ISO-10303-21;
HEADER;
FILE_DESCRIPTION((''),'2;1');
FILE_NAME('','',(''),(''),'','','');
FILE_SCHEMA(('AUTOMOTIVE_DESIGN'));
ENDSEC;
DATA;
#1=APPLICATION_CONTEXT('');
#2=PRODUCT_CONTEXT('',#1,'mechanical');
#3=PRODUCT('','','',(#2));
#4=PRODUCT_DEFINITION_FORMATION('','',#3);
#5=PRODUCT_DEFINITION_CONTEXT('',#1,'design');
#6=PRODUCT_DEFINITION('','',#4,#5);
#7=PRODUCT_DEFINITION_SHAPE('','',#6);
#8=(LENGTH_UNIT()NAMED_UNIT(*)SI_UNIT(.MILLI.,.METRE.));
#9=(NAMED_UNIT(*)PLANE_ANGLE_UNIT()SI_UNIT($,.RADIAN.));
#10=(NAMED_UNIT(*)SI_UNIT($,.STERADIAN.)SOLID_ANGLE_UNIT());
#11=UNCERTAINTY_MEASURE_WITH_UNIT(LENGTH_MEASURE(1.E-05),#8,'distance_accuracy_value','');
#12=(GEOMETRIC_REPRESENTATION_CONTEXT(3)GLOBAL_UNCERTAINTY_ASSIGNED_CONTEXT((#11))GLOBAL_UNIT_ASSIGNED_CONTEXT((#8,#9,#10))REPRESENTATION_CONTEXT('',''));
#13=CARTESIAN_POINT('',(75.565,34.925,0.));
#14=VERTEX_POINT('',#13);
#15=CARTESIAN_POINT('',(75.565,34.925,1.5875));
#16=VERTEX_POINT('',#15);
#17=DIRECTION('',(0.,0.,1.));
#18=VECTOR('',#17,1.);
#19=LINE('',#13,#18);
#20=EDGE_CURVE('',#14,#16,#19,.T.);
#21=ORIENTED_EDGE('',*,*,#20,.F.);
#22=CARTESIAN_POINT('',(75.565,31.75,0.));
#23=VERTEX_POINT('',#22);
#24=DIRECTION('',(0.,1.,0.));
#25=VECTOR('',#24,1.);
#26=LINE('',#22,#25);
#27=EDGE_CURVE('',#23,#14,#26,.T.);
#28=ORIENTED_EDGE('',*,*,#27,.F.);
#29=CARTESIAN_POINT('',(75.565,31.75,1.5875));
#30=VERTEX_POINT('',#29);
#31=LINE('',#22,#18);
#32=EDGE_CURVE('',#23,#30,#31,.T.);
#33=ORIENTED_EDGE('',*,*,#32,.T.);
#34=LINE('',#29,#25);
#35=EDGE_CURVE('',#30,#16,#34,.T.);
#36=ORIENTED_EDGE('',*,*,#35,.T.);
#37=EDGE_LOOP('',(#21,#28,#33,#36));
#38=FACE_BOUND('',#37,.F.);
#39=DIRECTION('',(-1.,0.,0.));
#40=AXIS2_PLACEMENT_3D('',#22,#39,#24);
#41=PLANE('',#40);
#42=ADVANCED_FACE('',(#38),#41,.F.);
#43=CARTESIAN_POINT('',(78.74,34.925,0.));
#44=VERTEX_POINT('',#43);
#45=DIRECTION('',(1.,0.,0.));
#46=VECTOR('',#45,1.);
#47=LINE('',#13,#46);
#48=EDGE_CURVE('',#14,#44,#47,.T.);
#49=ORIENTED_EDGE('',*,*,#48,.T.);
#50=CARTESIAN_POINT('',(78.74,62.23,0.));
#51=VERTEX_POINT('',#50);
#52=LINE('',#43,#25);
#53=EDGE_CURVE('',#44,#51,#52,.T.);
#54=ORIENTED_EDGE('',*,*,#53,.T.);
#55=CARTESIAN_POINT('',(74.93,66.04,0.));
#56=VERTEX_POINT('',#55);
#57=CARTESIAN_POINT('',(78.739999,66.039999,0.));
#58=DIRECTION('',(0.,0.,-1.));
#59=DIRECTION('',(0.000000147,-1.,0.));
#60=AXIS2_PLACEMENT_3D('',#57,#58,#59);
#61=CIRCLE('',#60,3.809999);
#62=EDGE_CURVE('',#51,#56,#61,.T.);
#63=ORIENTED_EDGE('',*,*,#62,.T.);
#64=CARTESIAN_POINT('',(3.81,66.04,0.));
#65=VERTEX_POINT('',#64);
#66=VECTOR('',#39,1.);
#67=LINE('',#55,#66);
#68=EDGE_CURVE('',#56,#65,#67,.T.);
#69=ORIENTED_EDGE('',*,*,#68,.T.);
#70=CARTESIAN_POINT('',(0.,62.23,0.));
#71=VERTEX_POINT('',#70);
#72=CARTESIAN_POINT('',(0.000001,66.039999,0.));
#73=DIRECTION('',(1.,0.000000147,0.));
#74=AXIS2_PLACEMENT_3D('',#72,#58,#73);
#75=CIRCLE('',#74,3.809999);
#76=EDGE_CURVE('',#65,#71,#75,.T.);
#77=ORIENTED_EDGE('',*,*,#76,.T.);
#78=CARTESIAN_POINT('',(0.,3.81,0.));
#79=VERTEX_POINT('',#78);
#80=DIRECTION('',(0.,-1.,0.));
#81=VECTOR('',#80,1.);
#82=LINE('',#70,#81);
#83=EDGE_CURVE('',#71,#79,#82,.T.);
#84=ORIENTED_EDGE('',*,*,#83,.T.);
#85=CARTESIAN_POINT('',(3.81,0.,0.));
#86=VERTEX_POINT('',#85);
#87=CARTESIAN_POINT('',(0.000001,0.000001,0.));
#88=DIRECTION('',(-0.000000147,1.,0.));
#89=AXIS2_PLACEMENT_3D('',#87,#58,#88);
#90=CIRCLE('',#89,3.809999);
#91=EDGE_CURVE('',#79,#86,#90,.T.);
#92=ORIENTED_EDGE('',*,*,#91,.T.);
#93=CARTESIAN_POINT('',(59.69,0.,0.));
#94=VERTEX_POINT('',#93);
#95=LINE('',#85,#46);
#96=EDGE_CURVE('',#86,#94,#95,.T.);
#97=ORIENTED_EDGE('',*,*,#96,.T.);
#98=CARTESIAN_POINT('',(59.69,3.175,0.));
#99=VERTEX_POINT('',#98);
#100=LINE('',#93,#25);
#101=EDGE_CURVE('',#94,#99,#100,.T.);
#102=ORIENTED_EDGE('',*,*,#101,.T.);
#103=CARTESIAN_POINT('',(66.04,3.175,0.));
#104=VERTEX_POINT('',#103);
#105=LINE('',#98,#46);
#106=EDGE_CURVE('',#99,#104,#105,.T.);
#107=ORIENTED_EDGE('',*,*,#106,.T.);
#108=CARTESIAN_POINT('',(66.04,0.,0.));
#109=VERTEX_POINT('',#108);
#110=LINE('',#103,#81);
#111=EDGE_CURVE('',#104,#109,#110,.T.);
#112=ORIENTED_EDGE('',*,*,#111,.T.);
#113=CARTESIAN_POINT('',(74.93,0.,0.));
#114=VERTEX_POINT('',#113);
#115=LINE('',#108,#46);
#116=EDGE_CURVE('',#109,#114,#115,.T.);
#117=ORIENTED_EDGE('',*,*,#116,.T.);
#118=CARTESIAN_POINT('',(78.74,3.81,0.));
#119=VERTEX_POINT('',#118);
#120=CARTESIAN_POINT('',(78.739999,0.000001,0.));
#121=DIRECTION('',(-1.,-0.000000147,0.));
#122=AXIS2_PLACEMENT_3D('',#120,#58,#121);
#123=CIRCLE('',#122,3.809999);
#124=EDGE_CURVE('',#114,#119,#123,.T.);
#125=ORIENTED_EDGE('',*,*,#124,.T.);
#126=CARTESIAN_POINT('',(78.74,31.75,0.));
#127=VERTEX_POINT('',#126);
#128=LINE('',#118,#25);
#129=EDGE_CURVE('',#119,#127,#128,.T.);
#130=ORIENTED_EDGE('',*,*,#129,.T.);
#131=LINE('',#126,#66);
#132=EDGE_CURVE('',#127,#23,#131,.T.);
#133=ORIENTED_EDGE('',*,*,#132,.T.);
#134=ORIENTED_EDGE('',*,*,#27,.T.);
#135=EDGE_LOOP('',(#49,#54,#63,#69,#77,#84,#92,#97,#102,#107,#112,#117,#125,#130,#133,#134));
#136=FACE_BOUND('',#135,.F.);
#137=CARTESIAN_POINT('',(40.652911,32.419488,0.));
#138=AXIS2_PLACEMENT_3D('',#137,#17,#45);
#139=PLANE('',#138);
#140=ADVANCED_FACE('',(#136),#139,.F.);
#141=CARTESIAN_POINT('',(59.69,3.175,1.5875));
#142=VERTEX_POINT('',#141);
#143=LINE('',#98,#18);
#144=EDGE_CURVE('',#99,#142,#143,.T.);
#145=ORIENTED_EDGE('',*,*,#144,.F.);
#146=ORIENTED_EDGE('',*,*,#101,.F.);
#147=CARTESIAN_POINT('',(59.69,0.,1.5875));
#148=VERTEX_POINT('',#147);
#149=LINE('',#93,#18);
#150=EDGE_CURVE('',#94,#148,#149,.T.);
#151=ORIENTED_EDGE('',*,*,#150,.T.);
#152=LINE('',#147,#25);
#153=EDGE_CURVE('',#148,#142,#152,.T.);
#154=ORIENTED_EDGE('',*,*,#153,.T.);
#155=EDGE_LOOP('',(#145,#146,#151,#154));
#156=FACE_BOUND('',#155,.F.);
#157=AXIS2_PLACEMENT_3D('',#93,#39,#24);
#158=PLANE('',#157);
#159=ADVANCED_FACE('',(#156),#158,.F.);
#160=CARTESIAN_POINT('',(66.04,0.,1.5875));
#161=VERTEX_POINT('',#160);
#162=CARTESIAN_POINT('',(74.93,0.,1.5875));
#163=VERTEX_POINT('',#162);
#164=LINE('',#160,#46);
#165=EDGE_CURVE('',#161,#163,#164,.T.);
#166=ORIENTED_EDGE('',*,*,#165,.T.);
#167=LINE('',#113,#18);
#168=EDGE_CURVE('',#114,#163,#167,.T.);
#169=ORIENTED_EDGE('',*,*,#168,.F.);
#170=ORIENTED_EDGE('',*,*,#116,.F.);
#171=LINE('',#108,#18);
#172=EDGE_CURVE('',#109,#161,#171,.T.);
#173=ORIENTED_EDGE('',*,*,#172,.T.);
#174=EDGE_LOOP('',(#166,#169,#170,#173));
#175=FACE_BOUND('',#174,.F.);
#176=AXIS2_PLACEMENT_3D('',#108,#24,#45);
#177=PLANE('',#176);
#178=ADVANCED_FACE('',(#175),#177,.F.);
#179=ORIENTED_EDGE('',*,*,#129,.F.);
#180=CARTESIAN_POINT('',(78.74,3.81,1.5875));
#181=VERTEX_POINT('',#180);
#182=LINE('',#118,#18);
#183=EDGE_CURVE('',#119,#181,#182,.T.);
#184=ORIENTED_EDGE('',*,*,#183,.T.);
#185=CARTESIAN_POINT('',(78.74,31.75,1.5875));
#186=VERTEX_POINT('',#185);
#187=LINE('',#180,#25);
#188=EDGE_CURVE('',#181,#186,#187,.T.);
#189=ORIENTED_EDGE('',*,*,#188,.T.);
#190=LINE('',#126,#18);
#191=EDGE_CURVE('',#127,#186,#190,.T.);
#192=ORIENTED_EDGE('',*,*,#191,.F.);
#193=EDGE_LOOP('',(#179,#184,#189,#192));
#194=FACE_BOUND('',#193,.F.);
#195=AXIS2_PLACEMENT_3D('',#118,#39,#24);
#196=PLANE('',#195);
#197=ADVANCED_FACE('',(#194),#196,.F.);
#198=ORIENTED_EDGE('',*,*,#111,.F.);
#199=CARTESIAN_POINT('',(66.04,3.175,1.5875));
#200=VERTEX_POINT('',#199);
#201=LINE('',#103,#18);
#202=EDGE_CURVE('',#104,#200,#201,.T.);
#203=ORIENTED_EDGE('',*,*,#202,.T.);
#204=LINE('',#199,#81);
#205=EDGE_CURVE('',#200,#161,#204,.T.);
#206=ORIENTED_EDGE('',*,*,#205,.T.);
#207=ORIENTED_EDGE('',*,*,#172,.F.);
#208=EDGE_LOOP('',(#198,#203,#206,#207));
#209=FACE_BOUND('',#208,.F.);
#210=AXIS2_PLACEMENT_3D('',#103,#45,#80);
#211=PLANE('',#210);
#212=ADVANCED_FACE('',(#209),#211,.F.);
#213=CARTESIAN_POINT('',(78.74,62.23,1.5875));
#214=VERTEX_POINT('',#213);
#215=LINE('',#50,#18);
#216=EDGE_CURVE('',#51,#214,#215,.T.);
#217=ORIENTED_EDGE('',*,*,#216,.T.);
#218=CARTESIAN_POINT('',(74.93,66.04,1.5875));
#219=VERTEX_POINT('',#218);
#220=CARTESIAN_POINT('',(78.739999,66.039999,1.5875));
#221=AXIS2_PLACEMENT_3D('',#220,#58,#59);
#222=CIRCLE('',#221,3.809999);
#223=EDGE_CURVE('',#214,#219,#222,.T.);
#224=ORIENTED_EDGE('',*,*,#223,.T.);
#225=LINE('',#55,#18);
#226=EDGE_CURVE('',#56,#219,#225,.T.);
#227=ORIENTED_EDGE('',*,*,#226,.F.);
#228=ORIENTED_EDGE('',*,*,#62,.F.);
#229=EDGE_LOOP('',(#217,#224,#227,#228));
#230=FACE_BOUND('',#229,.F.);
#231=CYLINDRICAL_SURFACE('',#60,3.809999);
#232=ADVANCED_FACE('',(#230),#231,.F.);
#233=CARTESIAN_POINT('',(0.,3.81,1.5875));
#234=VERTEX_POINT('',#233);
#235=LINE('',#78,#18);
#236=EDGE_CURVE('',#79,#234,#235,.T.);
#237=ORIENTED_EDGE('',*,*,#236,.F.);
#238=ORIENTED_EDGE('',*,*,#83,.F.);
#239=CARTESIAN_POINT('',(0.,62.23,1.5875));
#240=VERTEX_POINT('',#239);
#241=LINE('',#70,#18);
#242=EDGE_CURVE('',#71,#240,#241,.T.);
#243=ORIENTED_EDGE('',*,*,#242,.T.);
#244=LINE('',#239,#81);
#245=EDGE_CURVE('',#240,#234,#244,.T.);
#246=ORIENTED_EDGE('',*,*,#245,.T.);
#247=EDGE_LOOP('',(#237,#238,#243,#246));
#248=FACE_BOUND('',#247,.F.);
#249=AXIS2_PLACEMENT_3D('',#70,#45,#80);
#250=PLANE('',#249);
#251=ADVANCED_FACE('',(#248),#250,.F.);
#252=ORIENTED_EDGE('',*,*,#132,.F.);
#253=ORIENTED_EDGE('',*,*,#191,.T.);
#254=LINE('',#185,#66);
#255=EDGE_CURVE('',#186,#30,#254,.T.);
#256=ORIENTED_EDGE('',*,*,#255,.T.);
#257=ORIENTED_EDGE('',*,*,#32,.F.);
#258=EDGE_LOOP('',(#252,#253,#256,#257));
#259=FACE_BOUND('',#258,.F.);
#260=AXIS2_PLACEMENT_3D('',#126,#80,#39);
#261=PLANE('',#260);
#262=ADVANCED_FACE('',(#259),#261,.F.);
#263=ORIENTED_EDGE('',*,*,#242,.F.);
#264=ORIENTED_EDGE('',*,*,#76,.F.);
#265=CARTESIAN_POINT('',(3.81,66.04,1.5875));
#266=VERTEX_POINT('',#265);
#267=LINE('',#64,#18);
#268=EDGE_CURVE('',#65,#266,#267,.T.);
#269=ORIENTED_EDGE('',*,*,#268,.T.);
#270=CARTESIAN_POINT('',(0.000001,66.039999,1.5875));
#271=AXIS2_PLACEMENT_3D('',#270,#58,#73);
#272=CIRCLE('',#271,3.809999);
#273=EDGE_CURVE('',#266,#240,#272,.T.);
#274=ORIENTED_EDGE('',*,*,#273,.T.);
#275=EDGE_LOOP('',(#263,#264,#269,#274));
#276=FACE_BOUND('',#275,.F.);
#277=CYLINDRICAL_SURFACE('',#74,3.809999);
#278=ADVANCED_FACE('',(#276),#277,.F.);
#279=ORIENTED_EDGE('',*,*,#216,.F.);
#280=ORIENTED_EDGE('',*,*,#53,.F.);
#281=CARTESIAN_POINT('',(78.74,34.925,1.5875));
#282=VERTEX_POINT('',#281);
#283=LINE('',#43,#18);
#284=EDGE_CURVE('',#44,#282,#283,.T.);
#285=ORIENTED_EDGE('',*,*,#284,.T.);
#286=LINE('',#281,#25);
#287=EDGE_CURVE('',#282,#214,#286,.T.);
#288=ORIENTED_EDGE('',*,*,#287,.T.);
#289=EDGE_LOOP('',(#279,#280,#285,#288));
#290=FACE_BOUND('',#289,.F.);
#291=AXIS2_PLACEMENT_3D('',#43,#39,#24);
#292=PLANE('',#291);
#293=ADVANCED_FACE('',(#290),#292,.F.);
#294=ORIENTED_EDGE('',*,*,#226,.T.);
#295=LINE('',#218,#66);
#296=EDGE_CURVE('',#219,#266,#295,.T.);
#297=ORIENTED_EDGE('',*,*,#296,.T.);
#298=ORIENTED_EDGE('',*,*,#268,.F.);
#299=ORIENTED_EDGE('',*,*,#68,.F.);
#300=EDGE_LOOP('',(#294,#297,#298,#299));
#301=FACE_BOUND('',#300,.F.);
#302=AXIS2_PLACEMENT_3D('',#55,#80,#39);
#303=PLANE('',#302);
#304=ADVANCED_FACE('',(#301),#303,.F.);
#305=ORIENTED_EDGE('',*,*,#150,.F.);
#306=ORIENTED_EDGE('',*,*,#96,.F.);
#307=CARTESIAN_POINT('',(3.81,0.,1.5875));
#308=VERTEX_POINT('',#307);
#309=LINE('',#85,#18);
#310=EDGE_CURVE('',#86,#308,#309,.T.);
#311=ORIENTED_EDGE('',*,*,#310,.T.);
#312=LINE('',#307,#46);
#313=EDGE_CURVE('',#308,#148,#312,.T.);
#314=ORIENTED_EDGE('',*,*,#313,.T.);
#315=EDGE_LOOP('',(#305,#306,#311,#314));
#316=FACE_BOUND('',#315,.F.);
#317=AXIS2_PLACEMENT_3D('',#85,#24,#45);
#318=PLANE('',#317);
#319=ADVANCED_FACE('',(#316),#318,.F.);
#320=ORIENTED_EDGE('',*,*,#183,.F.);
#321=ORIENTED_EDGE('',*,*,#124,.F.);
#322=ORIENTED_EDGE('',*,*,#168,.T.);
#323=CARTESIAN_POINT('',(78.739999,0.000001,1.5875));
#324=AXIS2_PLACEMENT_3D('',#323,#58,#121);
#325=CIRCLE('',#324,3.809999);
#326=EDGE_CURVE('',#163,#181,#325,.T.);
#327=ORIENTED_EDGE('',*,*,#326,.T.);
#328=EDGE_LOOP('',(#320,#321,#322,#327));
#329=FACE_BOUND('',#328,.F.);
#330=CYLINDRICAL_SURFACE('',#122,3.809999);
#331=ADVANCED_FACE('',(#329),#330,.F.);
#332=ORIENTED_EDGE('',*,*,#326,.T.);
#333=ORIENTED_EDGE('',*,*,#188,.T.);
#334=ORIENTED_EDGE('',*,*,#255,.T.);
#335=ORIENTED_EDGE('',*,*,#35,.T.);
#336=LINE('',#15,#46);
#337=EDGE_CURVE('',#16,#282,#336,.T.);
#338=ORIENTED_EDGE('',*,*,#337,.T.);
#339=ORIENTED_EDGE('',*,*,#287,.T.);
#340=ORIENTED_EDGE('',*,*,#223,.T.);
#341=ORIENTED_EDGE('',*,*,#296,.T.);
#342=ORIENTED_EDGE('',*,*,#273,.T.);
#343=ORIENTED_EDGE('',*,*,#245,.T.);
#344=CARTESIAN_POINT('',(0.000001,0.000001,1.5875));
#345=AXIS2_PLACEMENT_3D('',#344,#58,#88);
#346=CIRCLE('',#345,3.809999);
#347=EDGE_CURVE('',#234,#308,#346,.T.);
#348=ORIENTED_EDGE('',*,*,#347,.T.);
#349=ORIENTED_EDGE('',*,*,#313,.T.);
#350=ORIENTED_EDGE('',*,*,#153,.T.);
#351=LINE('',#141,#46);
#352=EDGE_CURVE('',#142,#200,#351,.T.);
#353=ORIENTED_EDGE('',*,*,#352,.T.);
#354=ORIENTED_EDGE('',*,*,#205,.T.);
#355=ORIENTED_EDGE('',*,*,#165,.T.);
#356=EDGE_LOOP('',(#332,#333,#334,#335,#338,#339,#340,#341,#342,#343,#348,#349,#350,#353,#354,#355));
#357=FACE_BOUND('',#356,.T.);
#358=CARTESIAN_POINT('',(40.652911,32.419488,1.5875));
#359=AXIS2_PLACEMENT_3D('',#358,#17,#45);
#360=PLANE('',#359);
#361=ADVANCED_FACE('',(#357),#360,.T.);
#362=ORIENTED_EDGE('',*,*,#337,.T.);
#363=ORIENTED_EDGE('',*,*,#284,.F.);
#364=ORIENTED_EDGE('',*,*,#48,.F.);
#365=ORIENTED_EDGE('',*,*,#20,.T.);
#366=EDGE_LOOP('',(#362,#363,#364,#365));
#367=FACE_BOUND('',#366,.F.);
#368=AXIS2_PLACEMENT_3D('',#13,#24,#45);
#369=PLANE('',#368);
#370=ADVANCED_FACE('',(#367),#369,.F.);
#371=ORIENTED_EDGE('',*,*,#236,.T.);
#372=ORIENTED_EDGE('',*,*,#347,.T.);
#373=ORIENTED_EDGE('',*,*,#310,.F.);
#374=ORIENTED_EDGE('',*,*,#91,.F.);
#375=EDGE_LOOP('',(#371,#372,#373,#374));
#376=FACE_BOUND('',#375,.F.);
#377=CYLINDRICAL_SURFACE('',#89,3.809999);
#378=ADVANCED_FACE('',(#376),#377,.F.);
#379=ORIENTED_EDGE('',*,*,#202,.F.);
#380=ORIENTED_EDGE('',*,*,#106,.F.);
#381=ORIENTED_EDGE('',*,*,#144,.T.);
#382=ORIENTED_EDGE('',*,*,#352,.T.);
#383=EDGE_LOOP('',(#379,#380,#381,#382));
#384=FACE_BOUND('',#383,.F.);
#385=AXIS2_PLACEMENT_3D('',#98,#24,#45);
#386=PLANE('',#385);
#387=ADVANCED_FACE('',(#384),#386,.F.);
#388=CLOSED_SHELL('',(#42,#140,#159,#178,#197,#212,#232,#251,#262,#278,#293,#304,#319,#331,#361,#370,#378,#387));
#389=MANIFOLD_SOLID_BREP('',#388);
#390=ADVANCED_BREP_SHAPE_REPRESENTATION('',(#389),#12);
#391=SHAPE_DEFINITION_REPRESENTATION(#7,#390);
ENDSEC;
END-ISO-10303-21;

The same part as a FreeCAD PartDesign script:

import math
import FreeCAD as App
import Part
import Sketcher

V = App.Vector
Q = App.Units.Quantity

doc = App.newDocument("Part")
params = doc.addObject("Spreadsheet::Sheet", "Params")
for row, (alias, value) in enumerate([
    ("sketch1_radius", "0.15 in"),
    ("sketch1_width", "2.2 in"),
    ("sketch1_width2", "2.8 in"),
    ("sketch1_height", "1.1 in"),
    ("sketch1_height2", "2.3 in"),
    ("pad1_length", "0.0625 in"),
], start=1):
    params.set(f"A{row}", alias)
    params.set(f"B{row}", "=" + value)
    params.setAlias(f"B{row}", alias)

body = doc.addObject("PartDesign::Body", "Body")

# Sketch on XY plane
sketch1 = doc.addObject("Sketcher::SketchObject", "Sketch")
body.addObject(sketch1)
sketch1.AttachmentSupport = (doc.XY_Plane, [""])
sketch1.MapMode = "FlatFace"
sketch1.addGeometry(Part.ArcOfCircle(Part.Circle(V(0, 0, 0), V(0, 0, 1), 3.8), math.radians(0), math.radians(90)), False)
sketch1.addGeometry(Part.LineSegment(V(3.8, 0, 0), V(59.7, 0, 0)), False)
sketch1.addGeometry(Part.LineSegment(V(59.7, 0, 0), V(59.7, 3.2, 0)), False)
sketch1.addGeometry(Part.LineSegment(V(59.7, 3.2, 0), V(66, 3.2, 0)), False)
sketch1.addGeometry(Part.LineSegment(V(66, 3.2, 0), V(66, 0, 0)), False)
sketch1.addGeometry(Part.LineSegment(V(66, 0, 0), V(74.9, 0, 0)), False)
sketch1.addGeometry(Part.ArcOfCircle(Part.Circle(V(78.7, 0, 0), V(0, 0, 1), 3.8), math.radians(90), math.radians(180)), False)
sketch1.addGeometry(Part.LineSegment(V(78.7, 3.8, 0), V(78.7, 31.8, 0)), False)
sketch1.addGeometry(Part.LineSegment(V(78.7, 31.8, 0), V(75.6, 31.8, 0)), False)
sketch1.addGeometry(Part.LineSegment(V(75.6, 31.8, 0), V(75.6, 34.9, 0)), False)
sketch1.addGeometry(Part.LineSegment(V(75.6, 34.9, 0), V(78.7, 34.9, 0)), False)
sketch1.addGeometry(Part.LineSegment(V(78.7, 34.9, 0), V(78.7, 62.2, 0)), False)
sketch1.addGeometry(Part.ArcOfCircle(Part.Circle(V(78.7, 66, 0), V(0, 0, 1), 3.8), math.radians(180), math.radians(270)), False)
sketch1.addGeometry(Part.LineSegment(V(74.9, 66, 0), V(3.8, 66, 0)), False)
sketch1.addGeometry(Part.ArcOfCircle(Part.Circle(V(0, 66, 0), V(0, 0, 1), 3.8), math.radians(-90), math.radians(0)), False)
sketch1.addGeometry(Part.LineSegment(V(0, 62.2, 0), V(0, 3.8, 0)), False)
sketch1.addConstraint(Sketcher.Constraint("Coincident", 0, 1, 1, 1))
sketch1.addConstraint(Sketcher.Constraint("Coincident", 1, 2, 2, 1))
sketch1.addConstraint(Sketcher.Constraint("Coincident", 2, 2, 3, 1))
sketch1.addConstraint(Sketcher.Constraint("Coincident", 3, 2, 4, 1))
sketch1.addConstraint(Sketcher.Constraint("Coincident", 4, 2, 5, 1))
sketch1.addConstraint(Sketcher.Constraint("Coincident", 5, 2, 6, 2))
sketch1.addConstraint(Sketcher.Constraint("Coincident", 6, 1, 7, 1))
sketch1.addConstraint(Sketcher.Constraint("Coincident", 7, 2, 8, 1))
sketch1.addConstraint(Sketcher.Constraint("Coincident", 8, 2, 9, 1))
sketch1.addConstraint(Sketcher.Constraint("Coincident", 9, 2, 10, 1))
sketch1.addConstraint(Sketcher.Constraint("Coincident", 10, 2, 11, 1))
sketch1.addConstraint(Sketcher.Constraint("Coincident", 11, 2, 12, 2))
sketch1.addConstraint(Sketcher.Constraint("Coincident", 12, 1, 13, 1))
sketch1.addConstraint(Sketcher.Constraint("Coincident", 13, 2, 14, 2))
sketch1.addConstraint(Sketcher.Constraint("Coincident", 14, 1, 15, 1))
sketch1.addConstraint(Sketcher.Constraint("Coincident", 15, 2, 0, 2))
sketch1.addConstraint(Sketcher.Constraint("Horizontal", 1))
sketch1.addConstraint(Sketcher.Constraint("Vertical", 2))
sketch1.addConstraint(Sketcher.Constraint("Horizontal", 3))
sketch1.addConstraint(Sketcher.Constraint("Vertical", 4))
sketch1.addConstraint(Sketcher.Constraint("Horizontal", 5))
sketch1.addConstraint(Sketcher.Constraint("Vertical", 7))
sketch1.addConstraint(Sketcher.Constraint("Horizontal", 8))
sketch1.addConstraint(Sketcher.Constraint("Vertical", 9))
sketch1.addConstraint(Sketcher.Constraint("Horizontal", 10))
sketch1.addConstraint(Sketcher.Constraint("Vertical", 11))
sketch1.addConstraint(Sketcher.Constraint("Horizontal", 13))
sketch1.addConstraint(Sketcher.Constraint("Vertical", 15))
sketch1.addConstraint(Sketcher.Constraint("Coincident", 0, 3, -1, 1))
sketch1.addConstraint(Sketcher.Constraint("Equal", 0, 6))
sketch1.addConstraint(Sketcher.Constraint("Equal", 6, 12))
sketch1.addConstraint(Sketcher.Constraint("Equal", 12, 14))
sketch1.addConstraint(Sketcher.Constraint("PointOnObject", 6, 3, -1))
sketch1.addConstraint(Sketcher.Constraint("PointOnObject", 14, 3, -2))
sketch1.addConstraint(Sketcher.Constraint("PointOnObject", 0, 1, -1))
sketch1.addConstraint(Sketcher.Constraint("PointOnObject", 4, 2, -1))
sketch1.addConstraint(Sketcher.Constraint("PointOnObject", 14, 1, -2))
sketch1.addConstraint(Sketcher.Constraint("Horizontal", 12, 3, 14, 3))
sketch1.addConstraint(Sketcher.Constraint("Horizontal", 14, 3, 12, 1))
sketch1.addConstraint(Sketcher.Constraint("Vertical", 6, 3, 12, 3))
sketch1.addConstraint(Sketcher.Constraint("Vertical", 12, 3, 6, 1))
sketch1.addConstraint(Sketcher.Constraint("Vertical", 7, 2, 10, 2))
sketch1.addConstraint(Sketcher.Constraint("Equal", 10, 2))
sketch1.addConstraint(Sketcher.Constraint("Equal", 4, 9))
sketch1.addConstraint(Sketcher.Constraint("Radius", 0, Q("0.15 in")))
sketch1.addConstraint(Sketcher.Constraint("DistanceX", 1, 1, 1, 2, Q("2.2 in")))
sketch1.addConstraint(Sketcher.Constraint("DistanceX", 13, 2, 13, 1, Q("2.8 in")))
sketch1.addConstraint(Sketcher.Constraint("DistanceY", 7, 1, 7, 2, Q("1.1 in")))
sketch1.addConstraint(Sketcher.Constraint("DistanceY", 15, 2, 15, 1, Q("2.3 in")))
sketch1.addConstraint(Sketcher.Constraint("DistanceX", 3, 1, 3, 2, Q("0.25 in")))
sketch1.addConstraint(Sketcher.Constraint("DistanceX", 8, 2, 8, 1, Q("0.125 in")))
sketch1.setExpression("Constraints[44]", "Params.sketch1_radius")
sketch1.setExpression("Constraints[45]", "Params.sketch1_width")
sketch1.setExpression("Constraints[46]", "Params.sketch1_width2")
sketch1.setExpression("Constraints[47]", "Params.sketch1_height")
sketch1.setExpression("Constraints[48]", "Params.sketch1_height2")
pad1 = doc.addObject("PartDesign::Pad", "Pad")
body.addObject(pad1)
pad1.Profile = sketch1
pad1.setExpression("Length", "Params.pad1_length")

doc.recompute()
